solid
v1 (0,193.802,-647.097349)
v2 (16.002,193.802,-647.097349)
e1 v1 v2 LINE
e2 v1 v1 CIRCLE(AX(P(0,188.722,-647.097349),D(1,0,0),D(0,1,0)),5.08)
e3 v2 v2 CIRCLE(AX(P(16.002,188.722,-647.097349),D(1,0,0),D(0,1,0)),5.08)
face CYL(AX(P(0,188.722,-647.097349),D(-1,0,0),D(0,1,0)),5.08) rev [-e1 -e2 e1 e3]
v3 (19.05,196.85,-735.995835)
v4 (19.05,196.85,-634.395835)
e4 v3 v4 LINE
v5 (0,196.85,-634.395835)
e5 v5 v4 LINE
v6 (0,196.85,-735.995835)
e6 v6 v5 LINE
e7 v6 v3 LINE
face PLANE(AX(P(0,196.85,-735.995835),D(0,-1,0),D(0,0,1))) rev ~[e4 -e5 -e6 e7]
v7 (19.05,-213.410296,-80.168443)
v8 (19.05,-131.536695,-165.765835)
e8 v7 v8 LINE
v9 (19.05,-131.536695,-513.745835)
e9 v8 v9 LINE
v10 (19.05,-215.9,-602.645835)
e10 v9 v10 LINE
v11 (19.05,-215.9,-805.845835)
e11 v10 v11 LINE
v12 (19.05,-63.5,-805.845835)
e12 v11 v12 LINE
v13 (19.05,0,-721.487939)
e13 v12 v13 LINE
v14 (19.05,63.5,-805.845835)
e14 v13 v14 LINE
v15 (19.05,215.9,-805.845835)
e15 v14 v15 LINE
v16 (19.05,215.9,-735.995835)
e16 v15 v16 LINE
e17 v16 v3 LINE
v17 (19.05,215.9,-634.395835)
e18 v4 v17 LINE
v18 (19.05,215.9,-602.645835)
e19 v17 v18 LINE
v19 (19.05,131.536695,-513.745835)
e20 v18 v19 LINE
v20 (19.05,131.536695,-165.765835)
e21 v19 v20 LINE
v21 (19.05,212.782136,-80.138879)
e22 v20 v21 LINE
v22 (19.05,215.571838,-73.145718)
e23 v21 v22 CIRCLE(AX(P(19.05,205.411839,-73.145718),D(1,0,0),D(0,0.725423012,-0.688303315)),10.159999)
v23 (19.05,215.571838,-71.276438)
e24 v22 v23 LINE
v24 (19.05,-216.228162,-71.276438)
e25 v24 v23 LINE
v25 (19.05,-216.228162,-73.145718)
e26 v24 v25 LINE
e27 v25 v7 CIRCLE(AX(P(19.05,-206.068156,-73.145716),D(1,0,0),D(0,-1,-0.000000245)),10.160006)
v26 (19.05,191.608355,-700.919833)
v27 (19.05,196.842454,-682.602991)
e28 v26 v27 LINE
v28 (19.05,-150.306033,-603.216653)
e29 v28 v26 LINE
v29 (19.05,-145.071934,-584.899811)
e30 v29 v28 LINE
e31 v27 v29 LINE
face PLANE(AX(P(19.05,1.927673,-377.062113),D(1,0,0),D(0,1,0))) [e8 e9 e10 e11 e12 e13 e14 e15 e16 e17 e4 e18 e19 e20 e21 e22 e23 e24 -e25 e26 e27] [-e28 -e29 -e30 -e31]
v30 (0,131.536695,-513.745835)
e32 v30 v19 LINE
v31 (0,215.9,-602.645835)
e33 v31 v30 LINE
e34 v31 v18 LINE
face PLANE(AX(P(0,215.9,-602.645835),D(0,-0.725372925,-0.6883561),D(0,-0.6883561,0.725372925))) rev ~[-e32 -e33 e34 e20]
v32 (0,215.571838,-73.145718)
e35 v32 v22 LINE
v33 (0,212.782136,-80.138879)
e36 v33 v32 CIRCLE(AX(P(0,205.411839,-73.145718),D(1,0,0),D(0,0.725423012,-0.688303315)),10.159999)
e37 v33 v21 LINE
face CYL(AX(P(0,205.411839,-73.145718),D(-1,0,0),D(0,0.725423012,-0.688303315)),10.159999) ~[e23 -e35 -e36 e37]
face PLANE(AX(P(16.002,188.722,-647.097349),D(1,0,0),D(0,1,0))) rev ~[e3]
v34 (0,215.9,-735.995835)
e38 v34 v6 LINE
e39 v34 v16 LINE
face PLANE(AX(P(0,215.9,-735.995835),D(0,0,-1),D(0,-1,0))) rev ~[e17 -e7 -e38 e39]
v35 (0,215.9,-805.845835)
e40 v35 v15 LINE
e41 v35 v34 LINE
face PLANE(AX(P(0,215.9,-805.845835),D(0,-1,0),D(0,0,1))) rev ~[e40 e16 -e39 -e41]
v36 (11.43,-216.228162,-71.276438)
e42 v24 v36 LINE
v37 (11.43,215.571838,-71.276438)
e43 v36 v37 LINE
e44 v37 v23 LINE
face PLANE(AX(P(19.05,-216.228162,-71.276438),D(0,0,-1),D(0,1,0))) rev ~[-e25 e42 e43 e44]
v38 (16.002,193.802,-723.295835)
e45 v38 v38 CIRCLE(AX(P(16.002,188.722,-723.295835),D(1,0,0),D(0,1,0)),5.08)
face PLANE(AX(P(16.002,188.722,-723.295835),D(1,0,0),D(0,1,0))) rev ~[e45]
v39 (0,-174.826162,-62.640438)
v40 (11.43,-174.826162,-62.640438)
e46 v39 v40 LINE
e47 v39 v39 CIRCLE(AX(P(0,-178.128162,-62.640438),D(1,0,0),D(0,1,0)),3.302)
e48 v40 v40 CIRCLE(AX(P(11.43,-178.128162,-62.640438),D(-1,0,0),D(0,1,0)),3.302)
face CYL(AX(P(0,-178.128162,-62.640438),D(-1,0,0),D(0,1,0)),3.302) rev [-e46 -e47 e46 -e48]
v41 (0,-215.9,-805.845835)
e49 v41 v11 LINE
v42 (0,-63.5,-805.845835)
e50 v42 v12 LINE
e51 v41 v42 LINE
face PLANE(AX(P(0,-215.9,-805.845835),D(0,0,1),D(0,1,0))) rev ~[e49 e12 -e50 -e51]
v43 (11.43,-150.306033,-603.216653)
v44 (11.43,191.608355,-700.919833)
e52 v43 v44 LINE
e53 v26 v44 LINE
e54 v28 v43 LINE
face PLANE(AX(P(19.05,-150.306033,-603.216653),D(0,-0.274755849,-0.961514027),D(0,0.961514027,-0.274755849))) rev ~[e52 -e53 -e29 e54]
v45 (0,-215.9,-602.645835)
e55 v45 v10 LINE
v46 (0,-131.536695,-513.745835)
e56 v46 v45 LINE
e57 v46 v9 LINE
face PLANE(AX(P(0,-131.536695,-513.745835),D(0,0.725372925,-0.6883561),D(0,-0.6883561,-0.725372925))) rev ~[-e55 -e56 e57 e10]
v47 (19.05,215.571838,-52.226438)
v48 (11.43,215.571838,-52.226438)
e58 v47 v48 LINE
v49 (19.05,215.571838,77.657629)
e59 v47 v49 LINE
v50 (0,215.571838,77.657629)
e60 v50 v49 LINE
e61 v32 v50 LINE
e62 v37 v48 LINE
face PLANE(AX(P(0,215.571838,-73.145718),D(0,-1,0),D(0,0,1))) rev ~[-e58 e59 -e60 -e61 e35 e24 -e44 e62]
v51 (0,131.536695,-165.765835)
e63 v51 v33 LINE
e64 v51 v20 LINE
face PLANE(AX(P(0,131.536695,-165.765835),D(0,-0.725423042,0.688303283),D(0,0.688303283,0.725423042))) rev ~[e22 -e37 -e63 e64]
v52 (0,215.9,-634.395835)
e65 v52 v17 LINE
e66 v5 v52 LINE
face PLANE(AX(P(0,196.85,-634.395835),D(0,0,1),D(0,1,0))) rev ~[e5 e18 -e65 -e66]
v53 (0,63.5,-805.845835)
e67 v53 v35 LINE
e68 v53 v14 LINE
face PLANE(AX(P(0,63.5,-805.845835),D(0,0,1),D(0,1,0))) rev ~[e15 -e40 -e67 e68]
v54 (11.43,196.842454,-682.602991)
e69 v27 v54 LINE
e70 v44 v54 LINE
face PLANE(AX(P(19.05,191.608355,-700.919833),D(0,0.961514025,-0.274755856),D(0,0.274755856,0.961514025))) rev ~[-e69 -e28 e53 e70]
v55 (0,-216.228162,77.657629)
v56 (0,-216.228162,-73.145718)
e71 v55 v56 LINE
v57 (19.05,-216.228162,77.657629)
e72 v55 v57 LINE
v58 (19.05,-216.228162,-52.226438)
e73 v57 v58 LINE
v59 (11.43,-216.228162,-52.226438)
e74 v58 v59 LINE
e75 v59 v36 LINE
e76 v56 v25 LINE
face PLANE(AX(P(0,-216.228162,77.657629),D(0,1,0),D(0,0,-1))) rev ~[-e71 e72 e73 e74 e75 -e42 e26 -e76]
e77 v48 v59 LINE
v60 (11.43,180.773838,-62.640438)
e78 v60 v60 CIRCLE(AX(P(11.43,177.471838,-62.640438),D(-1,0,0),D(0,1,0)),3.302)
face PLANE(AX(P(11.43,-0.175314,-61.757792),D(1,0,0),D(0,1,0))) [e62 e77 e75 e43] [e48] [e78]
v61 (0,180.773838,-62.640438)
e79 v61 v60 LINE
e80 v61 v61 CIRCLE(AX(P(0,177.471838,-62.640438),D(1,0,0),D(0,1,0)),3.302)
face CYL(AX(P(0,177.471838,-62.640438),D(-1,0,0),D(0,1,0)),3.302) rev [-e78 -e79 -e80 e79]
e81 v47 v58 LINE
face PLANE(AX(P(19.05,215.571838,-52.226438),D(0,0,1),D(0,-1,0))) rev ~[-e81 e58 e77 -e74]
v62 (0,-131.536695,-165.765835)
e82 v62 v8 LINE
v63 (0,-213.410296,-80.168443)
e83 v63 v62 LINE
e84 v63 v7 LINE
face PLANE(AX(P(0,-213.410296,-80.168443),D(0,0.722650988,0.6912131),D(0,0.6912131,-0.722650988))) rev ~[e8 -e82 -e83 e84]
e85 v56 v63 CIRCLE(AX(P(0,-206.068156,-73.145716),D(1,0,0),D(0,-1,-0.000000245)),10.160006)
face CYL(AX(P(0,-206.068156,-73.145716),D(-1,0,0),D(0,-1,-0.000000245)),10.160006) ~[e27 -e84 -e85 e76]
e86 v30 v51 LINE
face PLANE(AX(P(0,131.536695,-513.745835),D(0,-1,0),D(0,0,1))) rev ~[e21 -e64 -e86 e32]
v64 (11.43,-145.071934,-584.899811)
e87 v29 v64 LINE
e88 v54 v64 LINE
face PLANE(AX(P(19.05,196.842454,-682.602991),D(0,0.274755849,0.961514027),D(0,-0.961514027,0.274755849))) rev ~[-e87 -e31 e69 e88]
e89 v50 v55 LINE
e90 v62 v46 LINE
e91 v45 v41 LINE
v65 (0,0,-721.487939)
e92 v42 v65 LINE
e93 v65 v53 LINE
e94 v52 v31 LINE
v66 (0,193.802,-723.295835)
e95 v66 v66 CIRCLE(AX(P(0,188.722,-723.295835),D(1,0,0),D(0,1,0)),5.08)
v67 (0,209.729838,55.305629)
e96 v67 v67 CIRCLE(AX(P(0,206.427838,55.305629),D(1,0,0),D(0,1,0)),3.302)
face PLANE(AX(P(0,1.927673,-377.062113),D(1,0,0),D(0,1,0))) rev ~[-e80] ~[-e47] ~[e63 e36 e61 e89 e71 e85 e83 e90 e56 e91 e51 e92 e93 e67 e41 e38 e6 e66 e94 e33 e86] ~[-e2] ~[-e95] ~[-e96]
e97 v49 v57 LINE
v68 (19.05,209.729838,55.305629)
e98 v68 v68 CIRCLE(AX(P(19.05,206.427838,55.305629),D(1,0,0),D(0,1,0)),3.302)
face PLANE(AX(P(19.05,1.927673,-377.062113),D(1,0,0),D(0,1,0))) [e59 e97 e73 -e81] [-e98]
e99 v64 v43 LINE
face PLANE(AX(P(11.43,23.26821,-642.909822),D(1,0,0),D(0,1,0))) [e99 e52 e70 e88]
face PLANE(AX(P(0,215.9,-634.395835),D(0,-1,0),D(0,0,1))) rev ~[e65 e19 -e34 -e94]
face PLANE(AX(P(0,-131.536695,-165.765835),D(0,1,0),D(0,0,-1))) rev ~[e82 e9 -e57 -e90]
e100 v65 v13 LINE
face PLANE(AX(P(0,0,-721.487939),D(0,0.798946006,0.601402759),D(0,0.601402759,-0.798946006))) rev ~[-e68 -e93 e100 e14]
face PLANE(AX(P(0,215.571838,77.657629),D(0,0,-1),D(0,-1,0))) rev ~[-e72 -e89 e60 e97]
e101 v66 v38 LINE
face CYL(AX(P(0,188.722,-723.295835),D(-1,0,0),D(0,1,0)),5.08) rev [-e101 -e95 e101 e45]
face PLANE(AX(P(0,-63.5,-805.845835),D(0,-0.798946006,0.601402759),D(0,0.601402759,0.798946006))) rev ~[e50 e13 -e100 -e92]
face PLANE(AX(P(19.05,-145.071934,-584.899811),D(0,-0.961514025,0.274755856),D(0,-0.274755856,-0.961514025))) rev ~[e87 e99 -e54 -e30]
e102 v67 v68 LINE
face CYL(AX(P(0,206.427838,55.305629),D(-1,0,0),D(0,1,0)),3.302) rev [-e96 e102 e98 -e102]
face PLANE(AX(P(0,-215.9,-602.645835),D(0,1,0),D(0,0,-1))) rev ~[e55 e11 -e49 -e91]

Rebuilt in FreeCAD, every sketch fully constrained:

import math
import FreeCAD as App
import Part
import Sketcher

V = App.Vector
Q = App.Units.Quantity


def add_polygon(sketch, points):
    """Adds a closed chain of lines whose ends are joined by coincident constraints."""
    first, n = sketch.GeometryCount, len(points)
    for a, b in zip(points, points[1:] + points[:1]):
        sketch.addGeometry(Part.LineSegment(App.Vector(*a, 0), App.Vector(*b, 0)), False)
    for i in range(n):
        sketch.addConstraint(Sketcher.Constraint("Coincident", first + i, 2, first + (i + 1) % n, 1))

doc = App.newDocument("Part")
params = doc.addObject("Spreadsheet::Sheet", "Params")
for row, (alias, value) in enumerate([
    ("sketch1_radius", "0.4 in"),
    ("sketch1_width", "17 in"),
    ("sketch1_width2", "6 in"),
    ("sketch1_height", "8 in"),
    ("sketch1_height2", "4 in"),
    ("pad1_length", "0.75 in"),
    ("sketch2_length", "14 in"),
    ("sketch2_length2", "0.75 in"),
    ("pocket1_length", "0.3 in"),
    ("sketch3_width", "17 in"),
    ("sketch3_height", "0.75 in"),
    ("pocket2_length", "0.3 in"),
    ("sketch4_diameter", "0.26 in"),
    ("pocket3_length", "0.75 in"),
    ("sketch5_diameter", "0.4 in"),
    ("pocket4_length", "0.63 in"),
], start=1):
    params.set(f"A{row}", alias)
    params.set(f"B{row}", "=" + value)
    params.setAlias(f"B{row}", alias)

body = doc.addObject("PartDesign::Body", "Body")

sketch1 = body.newObject("Sketcher::SketchObject", "Sketch")
sketch1.AttachmentSupport = (doc.getObject("YZ_Plane"), [""])
sketch1.MapMode = "FlatFace"
sketch1.addGeometry([
    Part.LineSegment(V(216, -73, 0), V(216, 78, 0)),
    Part.LineSegment(V(216, 78, 0), V(-216, 78, 0)),
    Part.LineSegment(V(-216, 78, 0), V(-216, -73, 0)),
    Part.ArcOfCircle(Part.Circle(V(-206, -73, 0), V(0, 0, 1), 10), math.radians(-180), math.radians(-136)),
    Part.LineSegment(V(-213, -80, 0), V(-132, -166, 0)),
    Part.LineSegment(V(-132, -166, 0), V(-132, -514, 0)),
    Part.LineSegment(V(-132, -514, 0), V(-216, -603, 0)),
    Part.LineSegment(V(-216, -603, 0), V(-216, -806, 0)),
    Part.LineSegment(V(-216, -806, 0), V(-64, -806, 0)),
    Part.LineSegment(V(-64, -806, 0), V(0, -721, 0)),
    Part.LineSegment(V(0, -721, 0), V(64, -806, 0)),
    Part.LineSegment(V(64, -806, 0), V(216, -806, 0)),
    Part.LineSegment(V(216, -806, 0), V(216, -736, 0)),
    Part.LineSegment(V(216, -736, 0), V(197, -736, 0)),
    Part.LineSegment(V(197, -736, 0), V(197, -634, 0)),
    Part.LineSegment(V(197, -634, 0), V(216, -634, 0)),
    Part.LineSegment(V(216, -634, 0), V(216, -603, 0)),
    Part.LineSegment(V(216, -603, 0), V(132, -514, 0)),
    Part.LineSegment(V(132, -514, 0), V(132, -166, 0)),
    Part.LineSegment(V(132, -166, 0), V(213, -80, 0)),
    Part.ArcOfCircle(Part.Circle(V(205, -73, 0), V(0, 0, 1), 10), math.radians(-43), math.radians(0)),
], False)
sketch1.addConstraint([
    Sketcher.Constraint("Coincident", 0, 2, 1, 1),
    Sketcher.Constraint("Coincident", 1, 2, 2, 1),
    Sketcher.Constraint("Tangent", 2, 2, 3, 1),
    Sketcher.Constraint("Tangent", 3, 2, 4, 1),
    Sketcher.Constraint("Coincident", 4, 2, 5, 1),
    Sketcher.Constraint("Coincident", 5, 2, 6, 1),
    Sketcher.Constraint("Coincident", 6, 2, 7, 1),
    Sketcher.Constraint("Coincident", 7, 2, 8, 1),
    Sketcher.Constraint("Coincident", 8, 2, 9, 1),
    Sketcher.Constraint("Coincident", 9, 2, 10, 1),
    Sketcher.Constraint("Coincident", 10, 2, 11, 1),
    Sketcher.Constraint("Coincident", 11, 2, 12, 1),
    Sketcher.Constraint("Coincident", 12, 2, 13, 1),
    Sketcher.Constraint("Coincident", 13, 2, 14, 1),
    Sketcher.Constraint("Coincident", 14, 2, 15, 1),
    Sketcher.Constraint("Coincident", 15, 2, 16, 1),
    Sketcher.Constraint("Coincident", 16, 2, 17, 1),
    Sketcher.Constraint("Coincident", 17, 2, 18, 1),
    Sketcher.Constraint("Coincident", 18, 2, 19, 1),
    Sketcher.Constraint("Tangent", 19, 2, 20, 1),
    Sketcher.Constraint("Tangent", 20, 2, 0, 1),
    Sketcher.Constraint("Vertical", 0),
    Sketcher.Constraint("Horizontal", 1),
    Sketcher.Constraint("Vertical", 2),
    Sketcher.Constraint("Vertical", 5),
    Sketcher.Constraint("Vertical", 7),
    Sketcher.Constraint("Horizontal", 8),
    Sketcher.Constraint("Horizontal", 11),
    Sketcher.Constraint("Vertical", 12),
    Sketcher.Constraint("Horizontal", 13),
    Sketcher.Constraint("Vertical", 14),
    Sketcher.Constraint("Horizontal", 15),
    Sketcher.Constraint("Vertical", 16),
    Sketcher.Constraint("Vertical", 18),
    Sketcher.Constraint("Symmetric", 8, 2, 10, 2, -2),
    Sketcher.Constraint("Symmetric", 6, 2, 16, 2, -2),
    Sketcher.Constraint("Symmetric", 5, 2, 17, 2, -2),
    Sketcher.Constraint("PointOnObject", 9, 2, -2),
    Sketcher.Constraint("Horizontal", 20, 3, 2, 2),
    Sketcher.Constraint("Horizontal", 4, 2, 18, 2),
    Sketcher.Constraint("Vertical", 12, 2, 15, 2),
    Sketcher.Constraint("Radius", 20, Q("0.4 in")),
    Sketcher.Constraint("DistanceX", 1, 2, 1, 1, Q("17 in")),
    Sketcher.Constraint("DistanceX", 8, 1, 8, 2, Q("6 in")),
    Sketcher.Constraint("DistanceY", 7, 2, 7, 1, Q("8 in")),
    Sketcher.Constraint("DistanceY", 14, 1, 14, 2, Q("4 in")),
    Sketcher.Constraint("DistanceY", 5, 2, 5, 1, Q("13.7 in")),
    Sketcher.Constraint("DistanceX", 8, 2, 10, 2, Q("5 in")),
    Sketcher.Constraint("DistanceX", 13, 2, 13, 1, Q("0.75 in")),
    Sketcher.Constraint("DistanceY", 12, 1, 12, 2, Q("2.75 in")),
    Sketcher.Constraint("DistanceY", 6, 2, 5, 2, Q("3.5 in")),
    Sketcher.Constraint("Radius", 3, Q("10.160006 mm")),
    Sketcher.Constraint("DistanceX", 3, 2, 4, 2, Q("81.873601 mm")),
    Sketcher.Constraint("Distance", 6, Q("122.557649 mm")),
    Sketcher.Constraint("Distance", 9, Q("105.586479 mm")),
    Sketcher.Constraint("Distance", 19, Q("118.037271 mm")),
    Sketcher.Constraint("DistanceY", 0, 1, 0, 2, Q("150.803347 mm")),
    Sketcher.Constraint("DistanceY", -1, 1, 0, 2, Q("77.657629 mm")),
])
sketch1.setExpression("Constraints[41]", "Params.sketch1_radius")
sketch1.setExpression("Constraints[42]", "Params.sketch1_width")
sketch1.setExpression("Constraints[43]", "Params.sketch1_width2")
sketch1.setExpression("Constraints[44]", "Params.sketch1_height")
sketch1.setExpression("Constraints[45]", "Params.sketch1_height2")
pad1 = body.newObject("PartDesign::Pad", "Pad")
pad1.Profile = sketch1
pad1.setExpression("Length", "Params.pad1_length")

sketch2 = body.newObject("Sketcher::SketchObject", "Sketch001")
sketch2.AttachmentSupport = (doc.getObject("YZ_Plane"), [""])
sketch2.MapMode = "FlatFace"
sketch2.AttachmentOffset = App.Placement(V(0, 0, 0.75 * 25.4), App.Rotation())
add_polygon(sketch2, [(192, -701), (197, -683), (-145, -585), (-150, -603)])
sketch2.addConstraint([
    Sketcher.Constraint("Perpendicular", 0, 1),
    Sketcher.Constraint("Perpendicular", 1, 2),
    Sketcher.Constraint("Perpendicular", 2, 3),
    Sketcher.Constraint("Distance", 1, Q("14 in")),
    Sketcher.Constraint("Distance", 0, Q("0.75 in")),
    Sketcher.Constraint("DistanceX", 2, 2, 1, 2, Q("5.234099 mm")),
    Sketcher.Constraint("DistanceY", 0, 2, -1, 1, Q("682.602991 mm")),
    Sketcher.Constraint("DistanceX", -1, 1, 0, 2, Q("196.842454 mm")),
])
sketch2.setExpression("Constraints[7]", "Params.sketch2_length")
sketch2.setExpression("Constraints[8]", "Params.sketch2_length2")
pocket1 = body.newObject("PartDesign::Pocket", "Pocket")
pocket1.Profile = sketch2
pocket1.setExpression("Length", "Params.pocket1_length")

sketch3 = body.newObject("Sketcher::SketchObject", "Sketch002")
sketch3.AttachmentSupport = (doc.getObject("YZ_Plane"), [""])
sketch3.MapMode = "FlatFace"
sketch3.AttachmentOffset = App.Placement(V(0, 0, 0.75 * 25.4), App.Rotation())
add_polygon(sketch3, [(-216, -71), (216, -71), (216, -52), (-216, -52)])
sketch3.addConstraint([
    Sketcher.Constraint("Horizontal", 0),
    Sketcher.Constraint("Horizontal", 2),
    Sketcher.Constraint("Vertical", 3),
    Sketcher.Constraint("DistanceX", 2, 2, 2, 1, Q("17 in")),
    Sketcher.Constraint("DistanceY", 3, 2, 3, 1, Q("0.75 in")),
    Sketcher.Constraint("DistanceX", 0, 1, 0, 2, Q("432.401887 mm")),
    Sketcher.Constraint("DistanceY", 0, 2, -1, 1, Q("71.276438 mm")),
    Sketcher.Constraint("DistanceX", -1, 1, 1, 2, Q("215.571838 mm")),
])
sketch3.setExpression("Constraints[7]", "Params.sketch3_width")
sketch3.setExpression("Constraints[8]", "Params.sketch3_height")
pocket2 = body.newObject("PartDesign::Pocket", "Pocket001")
pocket2.Profile = sketch3
pocket2.setExpression("Length", "Params.pocket2_length")

sketch4 = body.newObject("Sketcher::SketchObject", "Sketch003")
sketch4.AttachmentSupport = (doc.getObject("YZ_Plane"), [""])
sketch4.MapMode = "FlatFace"
sketch4.addGeometry([
    Part.Circle(V(-178.1, -62.6, 0), V(0, 0, 1), 3.3),
    Part.Circle(V(177.5, -62.6, 0), V(0, 0, 1), 3.3),
    Part.Circle(V(206.4, 55.3, 0), V(0, 0, 1), 3.3),
], False)
sketch4.addConstraint([
    Sketcher.Constraint("Equal", 0, 1),
    Sketcher.Constraint("Equal", 1, 2),
    Sketcher.Constraint("Horizontal", 0, 3, 1, 3),
    Sketcher.Constraint("Diameter", 0, Q("0.26 in")),
    Sketcher.Constraint("DistanceX", 0, 3, 1, 3, Q("14 in")),
    Sketcher.Constraint("DistanceX", 1, 3, 2, 3, Q("1.14 in")),
    Sketcher.Constraint("DistanceX", 0, 3, -1, 1, Q("178.128162 mm")),
    Sketcher.Constraint("DistanceY", 0, 3, -1, 1, Q("62.640438 mm")),
    Sketcher.Constraint("DistanceY", -1, 1, 2, 3, Q("55.305629 mm")),
])
sketch4.setExpression("Constraints[3]", "Params.sketch4_diameter")
pocket3 = body.newObject("PartDesign::Pocket", "Pocket002")
pocket3.Profile = sketch4
pocket3.setExpression("Length", "Params.pocket3_length")
pocket3.Reversed = True

sketch5 = body.newObject("Sketcher::SketchObject", "Sketch004")
sketch5.AttachmentSupport = (doc.getObject("YZ_Plane"), [""])
sketch5.MapMode = "FlatFace"
sketch5.addGeometry([
    Part.Circle(V(189, -723, 0), V(0, 0, 1), 5),
    Part.Circle(V(189, -647, 0), V(0, 0, 1), 5),
], False)
sketch5.addConstraint([
    Sketcher.Constraint("Equal", 0, 1),
    Sketcher.Constraint("Vertical", 0, 3, 1, 3),
    Sketcher.Constraint("Diameter", 0, Q("0.4 in")),
    Sketcher.Constraint("DistanceX", -1, 1, 0, 3, Q("7.43 in")),
    Sketcher.Constraint("DistanceY", 1, 3, -1, 1, Q("647.097349 mm")),
    Sketcher.Constraint("DistanceY", 0, 3, -1, 1, Q("723.295835 mm")),
])
sketch5.setExpression("Constraints[2]", "Params.sketch5_diameter")
pocket4 = body.newObject("PartDesign::Pocket", "Pocket003")
pocket4.Profile = sketch5
pocket4.setExpression("Length", "Params.pocket4_length")
pocket4.Reversed = True

doc.recompute()
